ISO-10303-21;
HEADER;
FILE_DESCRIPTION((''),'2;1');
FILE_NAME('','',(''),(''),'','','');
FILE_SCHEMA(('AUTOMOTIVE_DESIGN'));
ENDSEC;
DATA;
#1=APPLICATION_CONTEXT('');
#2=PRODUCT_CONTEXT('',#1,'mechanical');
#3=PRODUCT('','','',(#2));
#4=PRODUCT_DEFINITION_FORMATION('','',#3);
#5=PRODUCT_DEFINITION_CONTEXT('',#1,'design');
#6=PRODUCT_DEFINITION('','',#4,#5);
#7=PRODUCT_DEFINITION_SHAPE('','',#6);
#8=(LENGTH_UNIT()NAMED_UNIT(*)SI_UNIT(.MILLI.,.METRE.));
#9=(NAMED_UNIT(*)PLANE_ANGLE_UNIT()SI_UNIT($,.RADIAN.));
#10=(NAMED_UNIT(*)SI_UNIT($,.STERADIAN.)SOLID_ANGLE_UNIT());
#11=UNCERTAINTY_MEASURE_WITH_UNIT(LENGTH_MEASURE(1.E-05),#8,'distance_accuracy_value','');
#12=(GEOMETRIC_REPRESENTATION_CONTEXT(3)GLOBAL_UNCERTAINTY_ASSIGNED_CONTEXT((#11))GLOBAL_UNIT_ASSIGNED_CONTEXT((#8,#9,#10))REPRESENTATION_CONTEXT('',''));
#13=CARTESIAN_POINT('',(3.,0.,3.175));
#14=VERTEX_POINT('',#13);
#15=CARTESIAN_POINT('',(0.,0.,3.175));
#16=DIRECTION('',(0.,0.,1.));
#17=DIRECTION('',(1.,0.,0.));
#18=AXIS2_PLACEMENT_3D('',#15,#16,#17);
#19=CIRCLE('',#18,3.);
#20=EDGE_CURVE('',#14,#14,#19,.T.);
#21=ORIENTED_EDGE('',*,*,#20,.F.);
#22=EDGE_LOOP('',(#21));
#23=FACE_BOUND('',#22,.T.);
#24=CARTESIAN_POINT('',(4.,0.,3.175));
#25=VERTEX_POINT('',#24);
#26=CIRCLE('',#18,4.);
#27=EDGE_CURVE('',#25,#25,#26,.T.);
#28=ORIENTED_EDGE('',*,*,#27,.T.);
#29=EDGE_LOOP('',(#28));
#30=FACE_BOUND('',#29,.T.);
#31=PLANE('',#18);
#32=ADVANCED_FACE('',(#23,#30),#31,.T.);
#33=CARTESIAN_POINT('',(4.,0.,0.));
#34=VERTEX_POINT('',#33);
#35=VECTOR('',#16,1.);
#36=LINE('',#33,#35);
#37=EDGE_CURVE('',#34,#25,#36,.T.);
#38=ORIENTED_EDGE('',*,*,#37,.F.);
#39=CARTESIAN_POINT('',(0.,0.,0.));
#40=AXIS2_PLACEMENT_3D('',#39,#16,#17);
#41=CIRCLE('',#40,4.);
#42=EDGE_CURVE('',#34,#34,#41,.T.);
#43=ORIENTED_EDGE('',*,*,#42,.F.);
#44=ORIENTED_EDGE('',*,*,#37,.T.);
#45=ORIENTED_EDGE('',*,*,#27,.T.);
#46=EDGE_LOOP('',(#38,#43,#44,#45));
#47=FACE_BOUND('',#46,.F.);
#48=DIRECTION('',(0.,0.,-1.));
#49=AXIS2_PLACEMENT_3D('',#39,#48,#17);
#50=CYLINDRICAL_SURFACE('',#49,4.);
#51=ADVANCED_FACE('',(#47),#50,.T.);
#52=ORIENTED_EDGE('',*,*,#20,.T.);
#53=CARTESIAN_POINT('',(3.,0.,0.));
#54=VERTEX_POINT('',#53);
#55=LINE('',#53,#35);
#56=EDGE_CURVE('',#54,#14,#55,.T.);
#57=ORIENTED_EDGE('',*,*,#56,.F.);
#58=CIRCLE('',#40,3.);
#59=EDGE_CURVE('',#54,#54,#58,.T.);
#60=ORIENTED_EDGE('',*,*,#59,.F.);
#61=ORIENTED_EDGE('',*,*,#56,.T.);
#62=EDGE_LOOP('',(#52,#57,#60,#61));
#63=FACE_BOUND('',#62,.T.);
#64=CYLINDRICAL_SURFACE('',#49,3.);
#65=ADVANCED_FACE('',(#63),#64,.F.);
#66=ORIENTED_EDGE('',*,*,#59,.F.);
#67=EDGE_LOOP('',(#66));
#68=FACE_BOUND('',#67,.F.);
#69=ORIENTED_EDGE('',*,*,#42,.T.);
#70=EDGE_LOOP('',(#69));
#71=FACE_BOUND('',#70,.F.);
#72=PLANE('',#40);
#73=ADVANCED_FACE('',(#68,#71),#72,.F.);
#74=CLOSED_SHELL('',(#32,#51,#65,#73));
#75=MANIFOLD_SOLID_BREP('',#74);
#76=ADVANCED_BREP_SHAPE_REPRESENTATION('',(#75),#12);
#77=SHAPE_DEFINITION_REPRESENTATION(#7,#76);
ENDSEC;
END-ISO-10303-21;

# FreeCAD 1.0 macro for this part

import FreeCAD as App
import Part
import Sketcher

V = App.Vector
Q = App.Units.Quantity

doc = App.newDocument("Part")
body = doc.addObject("PartDesign::Body", "Body")

# Sketch on XY plane
sketch1 = body.newObject("Sketcher::SketchObject", "Sketch")
sketch1.AttachmentSupport = (doc.getObject("XY_Plane"), [""])
sketch1.MapMode = "FlatFace"
sketch1.addGeometry([
    Part.Circle(V(0, 0, 0), V(0, 0, 1), 4),
    Part.Circle(V(0, 0, 0), V(0, 0, 1), 3),
], False)
sketch1.addConstraint([
    Sketcher.Constraint("Coincident", 0, 3, -1, 1),
    Sketcher.Constraint("Coincident", 1, 3, -1, 1),
    Sketcher.Constraint("Diameter", 0, Q("8 mm")),
    Sketcher.Constraint("Diameter", 1, Q("6 mm")),
])
pad1 = body.newObject("PartDesign::Pad", "Pad")
pad1.Profile = sketch1
pad1.Length = 3.175

doc.recompute()
